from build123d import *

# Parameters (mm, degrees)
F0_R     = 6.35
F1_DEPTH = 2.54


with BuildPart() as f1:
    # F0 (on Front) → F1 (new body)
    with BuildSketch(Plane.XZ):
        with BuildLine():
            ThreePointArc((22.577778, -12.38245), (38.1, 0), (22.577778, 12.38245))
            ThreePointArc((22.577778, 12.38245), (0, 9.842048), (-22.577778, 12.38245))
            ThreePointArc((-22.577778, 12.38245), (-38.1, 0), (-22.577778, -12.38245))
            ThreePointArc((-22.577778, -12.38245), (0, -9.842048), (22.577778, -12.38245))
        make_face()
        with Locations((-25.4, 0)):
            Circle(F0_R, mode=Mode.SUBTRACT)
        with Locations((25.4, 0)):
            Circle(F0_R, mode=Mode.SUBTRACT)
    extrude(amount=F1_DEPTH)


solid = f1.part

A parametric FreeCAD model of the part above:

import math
import FreeCAD as App
import Part
import Sketcher
from FreeCAD import Vector
Q = App.Units.Quantity

doc = App.newDocument("Part")
params = doc.addObject("Spreadsheet::Sheet", "Params")
for row, (alias, value) in enumerate([
    ("sketch1_radius", "4.0000001 in"),
    ("sketch1_diameter", "0.5 in"),
    ("sketch1_radius2", "0.5 in"),
    ("pad1_length", "0.1 in"),
], start=1):
    params.set(f"A{row}", alias)
    params.set(f"B{row}", "=" + value)
    params.setAlias(f"B{row}", alias)

body = doc.addObject("PartDesign::Body", "Body")

# Sketch on XZ plane
sketch1 = body.newObject("Sketcher::SketchObject", "Sketch")
sketch1.AttachmentSupport = (doc.getObject("XZ_Plane"), [""])
sketch1.MapMode = "FlatFace"
sketch1.addGeometry([
    Part.ArcOfCircle(Part.Circle(Vector(25.4, 0, 0), Vector(0, 0, 1), 12.7), math.radians(-102.839586), math.radians(102.839586)),  # 0
    Part.ArcOfCircle(Part.Circle(Vector(0, 111.442051, 0), Vector(0, 0, 1), 101.600003), math.radians(-102.839588), math.radians(-77.160412)),  # 1
    Part.ArcOfCircle(Part.Circle(Vector(-25.4, 0, 0), Vector(0, 0, 1), 12.7), math.radians(77.160414), math.radians(282.839586)),  # 2
    Part.ArcOfCircle(Part.Circle(Vector(0, -111.442051, 0), Vector(0, 0, 1), 101.600003), math.radians(77.160412), math.radians(102.839588)),  # 3
    Part.Circle(Vector(-25.4, 0, 0), Vector(0, 0, 1), 6.35),  # 4
    Part.Circle(Vector(25.4, 0, 0), Vector(0, 0, 1), 6.35),  # 5
], False)
sketch1.addConstraint([
    Sketcher.Constraint("Tangent", 0, 2, 1, 2),
    Sketcher.Constraint("Tangent", 1, 1, 2, 1),
    Sketcher.Constraint("Tangent", 2, 2, 3, 2),
    Sketcher.Constraint("Tangent", 3, 1, 0, 1),
    Sketcher.Constraint("Coincident", 4, 3, 2, 3),
    Sketcher.Constraint("Coincident", 5, 3, 0, 3),
    Sketcher.Constraint("Equal", 0, 2),
    Sketcher.Constraint("Equal", 1, 3),
    Sketcher.Constraint("Equal", 4, 5),
    Sketcher.Constraint("Symmetric", 0, 3, 2, 3, -1, 1),
    Sketcher.Constraint("PointOnObject", 0, 3, -1),
    Sketcher.Constraint("Radius", 1, Q("4.0000001 in")),
    Sketcher.Constraint("Diameter", 4, Q("0.5 in")),
    Sketcher.Constraint("Radius", 0, Q("0.5 in")),
    Sketcher.Constraint("DistanceX", -1, 1, 0, 3, Q("1 in")),
])
sketch1.setExpression("Constraints[11]", "Params.sketch1_radius")
sketch1.setExpression("Constraints[12]", "Params.sketch1_diameter")
sketch1.setExpression("Constraints[13]", "Params.sketch1_radius2")
pad1 = body.newObject("PartDesign::Pad", "Pad")
pad1.Profile = sketch1
pad1.setExpression("Length", "Params.pad1_length")

doc.recompute()
